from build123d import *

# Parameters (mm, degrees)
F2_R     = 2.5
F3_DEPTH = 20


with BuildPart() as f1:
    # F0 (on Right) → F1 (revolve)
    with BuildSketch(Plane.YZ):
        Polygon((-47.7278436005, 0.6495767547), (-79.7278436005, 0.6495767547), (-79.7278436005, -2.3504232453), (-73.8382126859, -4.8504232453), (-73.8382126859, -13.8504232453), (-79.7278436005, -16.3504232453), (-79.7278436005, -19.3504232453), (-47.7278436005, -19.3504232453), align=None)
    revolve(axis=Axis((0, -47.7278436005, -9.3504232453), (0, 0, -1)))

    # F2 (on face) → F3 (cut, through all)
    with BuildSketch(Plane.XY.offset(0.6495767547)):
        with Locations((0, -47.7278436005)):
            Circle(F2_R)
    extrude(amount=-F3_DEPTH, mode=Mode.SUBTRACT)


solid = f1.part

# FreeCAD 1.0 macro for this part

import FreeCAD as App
import Part
import Sketcher
Q = App.Units.Quantity


def add_polygon(sketch, points):
    """Adds a closed chain of lines whose ends are joined by coincident constraints."""
    first, n = sketch.GeometryCount, len(points)
    for a, b in zip(points, points[1:] + points[:1]):
        sketch.addGeometry(Part.LineSegment(App.Vector(*a, 0), App.Vector(*b, 0)), False)
    for i in range(n):
        sketch.addConstraint(Sketcher.Constraint("Coincident", first + i, 2, first + (i + 1) % n, 1))

doc = App.newDocument("Part")
body = doc.addObject("PartDesign::Body", "Body")

sketch1 = body.newObject("Sketcher::SketchObject", "Sketch")
sketch1.AttachmentSupport = (doc.getObject("YZ_Plane"), [""])
sketch1.MapMode = "FlatFace"
add_polygon(sketch1, [(-47.727844, 0.649577), (-79.727844, 0.649577), (-79.727844, -2.350423), (-73.838213, -4.850423), (-73.838213, -13.850423), (-79.727844, -16.350423), (-79.727844, -19.350423), (-47.727844, -19.350423)])
sketch1.addGeometry(Part.LineSegment(App.Vector(-47.727844, 0.649577, 0), App.Vector(-47.727844, -19.350423, 0)), True)
sketch1.addConstraint([
    Sketcher.Constraint("Horizontal", 0),
    Sketcher.Constraint("Vertical", 1),
    Sketcher.Constraint("Vertical", 3),
    Sketcher.Constraint("Vertical", 5),
    Sketcher.Constraint("Horizontal", 6),
    Sketcher.Constraint("Vertical", 7),
    Sketcher.Constraint("Vertical", 8),
    Sketcher.Constraint("Coincident", 8, 1, 7, 2),
    Sketcher.Constraint("Horizontal", 5, 2, 8, 2),
    Sketcher.Constraint("Vertical", 1, 2, 4, 2),
    Sketcher.Constraint("Equal", 1, 5),
    Sketcher.Constraint("Equal", 2, 4),
    Sketcher.Constraint("DistanceX", 0, 2, 0, 1, 32.0),
    Sketcher.Constraint("DistanceY", 1, 2, 1, 1, 3.0),
    Sketcher.Constraint("DistanceY", 3, 2, 3, 1, 9.0),
    Sketcher.Constraint("DistanceY", 7, 1, 7, 2, 20.0),
    Sketcher.Constraint("Angle", 2, Q("-23 deg")),
    Sketcher.Constraint("DistanceX", 0, 2, -1, 1, 79.727844),
    Sketcher.Constraint("DistanceY", -1, 1, 0, 2, 0.649577),
])
revolution = body.newObject("PartDesign::Revolution", "Revolution")
revolution.Profile = sketch1
revolution.ReferenceAxis = (sketch1, ["Axis0"])
revolution.Angle = 360

sketch2 = body.newObject("Sketcher::SketchObject", "Sketch001")
sketch2.AttachmentSupport = (doc.getObject("XY_Plane"), [""])
sketch2.MapMode = "FlatFace"
sketch2.AttachmentOffset = App.Placement(App.Vector(0, 0, 0.649577), App.Rotation())
sketch2.addGeometry(Part.Circle(App.Vector(0, -47.727844, 0), App.Vector(0, 0, 1), 2.5), False)
sketch2.addConstraint([
    Sketcher.Constraint("PointOnObject", 0, 3, -2),
    Sketcher.Constraint("Diameter", 0, 5.0),
    Sketcher.Constraint("DistanceY", 0, 3, -1, 1, 47.727844),
])
pocket1 = body.newObject("PartDesign::Pocket", "Pocket")
pocket1.Profile = sketch2
pocket1.Type = "ThroughAll"

doc.recompute()
